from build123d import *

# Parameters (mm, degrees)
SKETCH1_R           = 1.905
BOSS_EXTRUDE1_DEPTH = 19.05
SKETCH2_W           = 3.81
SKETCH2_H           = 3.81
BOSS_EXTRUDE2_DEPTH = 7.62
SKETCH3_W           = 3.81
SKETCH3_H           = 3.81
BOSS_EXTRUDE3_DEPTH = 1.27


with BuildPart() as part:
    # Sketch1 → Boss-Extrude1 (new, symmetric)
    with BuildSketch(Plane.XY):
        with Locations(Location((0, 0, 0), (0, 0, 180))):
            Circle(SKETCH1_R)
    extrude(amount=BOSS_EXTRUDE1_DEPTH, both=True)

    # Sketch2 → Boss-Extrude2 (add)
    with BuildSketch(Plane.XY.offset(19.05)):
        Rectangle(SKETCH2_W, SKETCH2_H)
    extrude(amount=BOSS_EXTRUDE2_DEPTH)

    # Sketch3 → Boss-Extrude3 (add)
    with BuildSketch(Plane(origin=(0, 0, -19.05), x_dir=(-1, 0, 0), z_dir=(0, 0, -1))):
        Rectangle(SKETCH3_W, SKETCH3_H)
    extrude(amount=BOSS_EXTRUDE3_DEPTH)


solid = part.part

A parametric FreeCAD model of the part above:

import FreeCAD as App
import Part
import Sketcher
from FreeCAD import Vector
Q = App.Units.Quantity

doc = App.newDocument("Part")
params = doc.addObject("Spreadsheet::Sheet", "Params")
for row, (alias, value) in enumerate([
    ("sketch1_diameter", "0.15 in"),
    ("pad1_length", "1.5 in"),
    ("sketch2_width", "0.15 in"),
    ("pad2_length", "0.3 in"),
    ("sketch3_width", "0.15 in"),
    ("pad3_length", "0.05 in"),
], start=1):
    params.set(f"A{row}", alias)
    params.set(f"B{row}", "=" + value)
    params.setAlias(f"B{row}", alias)

body = doc.addObject("PartDesign::Body", "Body")

sketch1 = body.newObject("Sketcher::SketchObject", "Sketch")
sketch1.AttachmentSupport = (doc.getObject("XY_Plane"), [""])
sketch1.MapMode = "FlatFace"
sketch1.addGeometry(Part.Circle(Vector(0, 0, 0), Vector(0, 0, 1), 1.905), False)
sketch1.addConstraint([
    Sketcher.Constraint("Coincident", 0, 3, -1, 1),
    Sketcher.Constraint("Diameter", 0, Q("0.15 in")),
])
sketch1.setExpression("Constraints[1]", "Params.sketch1_diameter")
pad1 = body.newObject("PartDesign::Pad", "Pad")
pad1.Profile = sketch1
pad1.setExpression("Length", "Params.pad1_length")
pad1.Midplane = True

sketch2 = body.newObject("Sketcher::SketchObject", "Sketch001")
sketch2.AttachmentSupport = (doc.getObject("XY_Plane"), [""])
sketch2.MapMode = "FlatFace"
sketch2.AttachmentOffset = App.Placement(Vector(0, 0, 0.75 * 25.4), App.Rotation())
sketch2.addGeometry([
    Part.LineSegment(Vector(-1.905, 1.905, 0), Vector(-1.905, -1.905, 0)),
    Part.LineSegment(Vector(-1.905, -1.905, 0), Vector(1.905, -1.905, 0)),
    Part.LineSegment(Vector(1.905, -1.905, 0), Vector(1.905, 1.905, 0)),
    Part.LineSegment(Vector(1.905, 1.905, 0), Vector(-1.905, 1.905, 0)),
], False)
sketch2.addConstraint([
    Sketcher.Constraint("Coincident", 0, 2, 1, 1),
    Sketcher.Constraint("Coincident", 1, 2, 2, 1),
    Sketcher.Constraint("Coincident", 2, 2, 3, 1),
    Sketcher.Constraint("Coincident", 3, 2, 0, 1),
    Sketcher.Constraint("Vertical", 0),
    Sketcher.Constraint("Horizontal", 1),
    Sketcher.Constraint("Vertical", 2),
    Sketcher.Constraint("Horizontal", 3),
    Sketcher.Constraint("Symmetric", 0, 2, 2, 2, -1, 1),
    Sketcher.Constraint("Equal", 3, 0),
    Sketcher.Constraint("DistanceX", 1, 1, 1, 2, Q("0.15 in")),
])
sketch2.setExpression("Constraints[10]", "Params.sketch2_width")
pad2 = body.newObject("PartDesign::Pad", "Pad001")
pad2.Profile = sketch2
pad2.setExpression("Length", "Params.pad2_length")

sketch3 = body.newObject("Sketcher::SketchObject", "Sketch002")
sketch3.AttachmentSupport = (doc.getObject("XY_Plane"), [""])
sketch3.MapMode = "FlatFace"
sketch3.AttachmentOffset = App.Placement(Vector(0, 0, -0.75 * 25.4), App.Rotation())
sketch3.addGeometry([
    Part.LineSegment(Vector(1.905, 1.905, 0), Vector(1.905, -1.905, 0)),
    Part.LineSegment(Vector(1.905, -1.905, 0), Vector(-1.905, -1.905, 0)),
    Part.LineSegment(Vector(-1.905, -1.905, 0), Vector(-1.905, 1.905, 0)),
    Part.LineSegment(Vector(-1.905, 1.905, 0), Vector(1.905, 1.905, 0)),
], False)
sketch3.addConstraint([
    Sketcher.Constraint("Coincident", 0, 2, 1, 1),
    Sketcher.Constraint("Coincident", 1, 2, 2, 1),
    Sketcher.Constraint("Coincident", 2, 2, 3, 1),
    Sketcher.Constraint("Coincident", 3, 2, 0, 1),
    Sketcher.Constraint("Vertical", 0),
    Sketcher.Constraint("Horizontal", 1),
    Sketcher.Constraint("Vertical", 2),
    Sketcher.Constraint("Horizontal", 3),
    Sketcher.Constraint("Symmetric", 0, 2, 2, 2, -1, 1),
    Sketcher.Constraint("Equal", 3, 0),
    Sketcher.Constraint("DistanceX", 1, 2, 1, 1, Q("0.15 in")),
])
sketch3.setExpression("Constraints[10]", "Params.sketch3_width")
pad3 = body.newObject("PartDesign::Pad", "Pad002")
pad3.Profile = sketch3
pad3.setExpression("Length", "Params.pad3_length")
pad3.Reversed = True

doc.recompute()
